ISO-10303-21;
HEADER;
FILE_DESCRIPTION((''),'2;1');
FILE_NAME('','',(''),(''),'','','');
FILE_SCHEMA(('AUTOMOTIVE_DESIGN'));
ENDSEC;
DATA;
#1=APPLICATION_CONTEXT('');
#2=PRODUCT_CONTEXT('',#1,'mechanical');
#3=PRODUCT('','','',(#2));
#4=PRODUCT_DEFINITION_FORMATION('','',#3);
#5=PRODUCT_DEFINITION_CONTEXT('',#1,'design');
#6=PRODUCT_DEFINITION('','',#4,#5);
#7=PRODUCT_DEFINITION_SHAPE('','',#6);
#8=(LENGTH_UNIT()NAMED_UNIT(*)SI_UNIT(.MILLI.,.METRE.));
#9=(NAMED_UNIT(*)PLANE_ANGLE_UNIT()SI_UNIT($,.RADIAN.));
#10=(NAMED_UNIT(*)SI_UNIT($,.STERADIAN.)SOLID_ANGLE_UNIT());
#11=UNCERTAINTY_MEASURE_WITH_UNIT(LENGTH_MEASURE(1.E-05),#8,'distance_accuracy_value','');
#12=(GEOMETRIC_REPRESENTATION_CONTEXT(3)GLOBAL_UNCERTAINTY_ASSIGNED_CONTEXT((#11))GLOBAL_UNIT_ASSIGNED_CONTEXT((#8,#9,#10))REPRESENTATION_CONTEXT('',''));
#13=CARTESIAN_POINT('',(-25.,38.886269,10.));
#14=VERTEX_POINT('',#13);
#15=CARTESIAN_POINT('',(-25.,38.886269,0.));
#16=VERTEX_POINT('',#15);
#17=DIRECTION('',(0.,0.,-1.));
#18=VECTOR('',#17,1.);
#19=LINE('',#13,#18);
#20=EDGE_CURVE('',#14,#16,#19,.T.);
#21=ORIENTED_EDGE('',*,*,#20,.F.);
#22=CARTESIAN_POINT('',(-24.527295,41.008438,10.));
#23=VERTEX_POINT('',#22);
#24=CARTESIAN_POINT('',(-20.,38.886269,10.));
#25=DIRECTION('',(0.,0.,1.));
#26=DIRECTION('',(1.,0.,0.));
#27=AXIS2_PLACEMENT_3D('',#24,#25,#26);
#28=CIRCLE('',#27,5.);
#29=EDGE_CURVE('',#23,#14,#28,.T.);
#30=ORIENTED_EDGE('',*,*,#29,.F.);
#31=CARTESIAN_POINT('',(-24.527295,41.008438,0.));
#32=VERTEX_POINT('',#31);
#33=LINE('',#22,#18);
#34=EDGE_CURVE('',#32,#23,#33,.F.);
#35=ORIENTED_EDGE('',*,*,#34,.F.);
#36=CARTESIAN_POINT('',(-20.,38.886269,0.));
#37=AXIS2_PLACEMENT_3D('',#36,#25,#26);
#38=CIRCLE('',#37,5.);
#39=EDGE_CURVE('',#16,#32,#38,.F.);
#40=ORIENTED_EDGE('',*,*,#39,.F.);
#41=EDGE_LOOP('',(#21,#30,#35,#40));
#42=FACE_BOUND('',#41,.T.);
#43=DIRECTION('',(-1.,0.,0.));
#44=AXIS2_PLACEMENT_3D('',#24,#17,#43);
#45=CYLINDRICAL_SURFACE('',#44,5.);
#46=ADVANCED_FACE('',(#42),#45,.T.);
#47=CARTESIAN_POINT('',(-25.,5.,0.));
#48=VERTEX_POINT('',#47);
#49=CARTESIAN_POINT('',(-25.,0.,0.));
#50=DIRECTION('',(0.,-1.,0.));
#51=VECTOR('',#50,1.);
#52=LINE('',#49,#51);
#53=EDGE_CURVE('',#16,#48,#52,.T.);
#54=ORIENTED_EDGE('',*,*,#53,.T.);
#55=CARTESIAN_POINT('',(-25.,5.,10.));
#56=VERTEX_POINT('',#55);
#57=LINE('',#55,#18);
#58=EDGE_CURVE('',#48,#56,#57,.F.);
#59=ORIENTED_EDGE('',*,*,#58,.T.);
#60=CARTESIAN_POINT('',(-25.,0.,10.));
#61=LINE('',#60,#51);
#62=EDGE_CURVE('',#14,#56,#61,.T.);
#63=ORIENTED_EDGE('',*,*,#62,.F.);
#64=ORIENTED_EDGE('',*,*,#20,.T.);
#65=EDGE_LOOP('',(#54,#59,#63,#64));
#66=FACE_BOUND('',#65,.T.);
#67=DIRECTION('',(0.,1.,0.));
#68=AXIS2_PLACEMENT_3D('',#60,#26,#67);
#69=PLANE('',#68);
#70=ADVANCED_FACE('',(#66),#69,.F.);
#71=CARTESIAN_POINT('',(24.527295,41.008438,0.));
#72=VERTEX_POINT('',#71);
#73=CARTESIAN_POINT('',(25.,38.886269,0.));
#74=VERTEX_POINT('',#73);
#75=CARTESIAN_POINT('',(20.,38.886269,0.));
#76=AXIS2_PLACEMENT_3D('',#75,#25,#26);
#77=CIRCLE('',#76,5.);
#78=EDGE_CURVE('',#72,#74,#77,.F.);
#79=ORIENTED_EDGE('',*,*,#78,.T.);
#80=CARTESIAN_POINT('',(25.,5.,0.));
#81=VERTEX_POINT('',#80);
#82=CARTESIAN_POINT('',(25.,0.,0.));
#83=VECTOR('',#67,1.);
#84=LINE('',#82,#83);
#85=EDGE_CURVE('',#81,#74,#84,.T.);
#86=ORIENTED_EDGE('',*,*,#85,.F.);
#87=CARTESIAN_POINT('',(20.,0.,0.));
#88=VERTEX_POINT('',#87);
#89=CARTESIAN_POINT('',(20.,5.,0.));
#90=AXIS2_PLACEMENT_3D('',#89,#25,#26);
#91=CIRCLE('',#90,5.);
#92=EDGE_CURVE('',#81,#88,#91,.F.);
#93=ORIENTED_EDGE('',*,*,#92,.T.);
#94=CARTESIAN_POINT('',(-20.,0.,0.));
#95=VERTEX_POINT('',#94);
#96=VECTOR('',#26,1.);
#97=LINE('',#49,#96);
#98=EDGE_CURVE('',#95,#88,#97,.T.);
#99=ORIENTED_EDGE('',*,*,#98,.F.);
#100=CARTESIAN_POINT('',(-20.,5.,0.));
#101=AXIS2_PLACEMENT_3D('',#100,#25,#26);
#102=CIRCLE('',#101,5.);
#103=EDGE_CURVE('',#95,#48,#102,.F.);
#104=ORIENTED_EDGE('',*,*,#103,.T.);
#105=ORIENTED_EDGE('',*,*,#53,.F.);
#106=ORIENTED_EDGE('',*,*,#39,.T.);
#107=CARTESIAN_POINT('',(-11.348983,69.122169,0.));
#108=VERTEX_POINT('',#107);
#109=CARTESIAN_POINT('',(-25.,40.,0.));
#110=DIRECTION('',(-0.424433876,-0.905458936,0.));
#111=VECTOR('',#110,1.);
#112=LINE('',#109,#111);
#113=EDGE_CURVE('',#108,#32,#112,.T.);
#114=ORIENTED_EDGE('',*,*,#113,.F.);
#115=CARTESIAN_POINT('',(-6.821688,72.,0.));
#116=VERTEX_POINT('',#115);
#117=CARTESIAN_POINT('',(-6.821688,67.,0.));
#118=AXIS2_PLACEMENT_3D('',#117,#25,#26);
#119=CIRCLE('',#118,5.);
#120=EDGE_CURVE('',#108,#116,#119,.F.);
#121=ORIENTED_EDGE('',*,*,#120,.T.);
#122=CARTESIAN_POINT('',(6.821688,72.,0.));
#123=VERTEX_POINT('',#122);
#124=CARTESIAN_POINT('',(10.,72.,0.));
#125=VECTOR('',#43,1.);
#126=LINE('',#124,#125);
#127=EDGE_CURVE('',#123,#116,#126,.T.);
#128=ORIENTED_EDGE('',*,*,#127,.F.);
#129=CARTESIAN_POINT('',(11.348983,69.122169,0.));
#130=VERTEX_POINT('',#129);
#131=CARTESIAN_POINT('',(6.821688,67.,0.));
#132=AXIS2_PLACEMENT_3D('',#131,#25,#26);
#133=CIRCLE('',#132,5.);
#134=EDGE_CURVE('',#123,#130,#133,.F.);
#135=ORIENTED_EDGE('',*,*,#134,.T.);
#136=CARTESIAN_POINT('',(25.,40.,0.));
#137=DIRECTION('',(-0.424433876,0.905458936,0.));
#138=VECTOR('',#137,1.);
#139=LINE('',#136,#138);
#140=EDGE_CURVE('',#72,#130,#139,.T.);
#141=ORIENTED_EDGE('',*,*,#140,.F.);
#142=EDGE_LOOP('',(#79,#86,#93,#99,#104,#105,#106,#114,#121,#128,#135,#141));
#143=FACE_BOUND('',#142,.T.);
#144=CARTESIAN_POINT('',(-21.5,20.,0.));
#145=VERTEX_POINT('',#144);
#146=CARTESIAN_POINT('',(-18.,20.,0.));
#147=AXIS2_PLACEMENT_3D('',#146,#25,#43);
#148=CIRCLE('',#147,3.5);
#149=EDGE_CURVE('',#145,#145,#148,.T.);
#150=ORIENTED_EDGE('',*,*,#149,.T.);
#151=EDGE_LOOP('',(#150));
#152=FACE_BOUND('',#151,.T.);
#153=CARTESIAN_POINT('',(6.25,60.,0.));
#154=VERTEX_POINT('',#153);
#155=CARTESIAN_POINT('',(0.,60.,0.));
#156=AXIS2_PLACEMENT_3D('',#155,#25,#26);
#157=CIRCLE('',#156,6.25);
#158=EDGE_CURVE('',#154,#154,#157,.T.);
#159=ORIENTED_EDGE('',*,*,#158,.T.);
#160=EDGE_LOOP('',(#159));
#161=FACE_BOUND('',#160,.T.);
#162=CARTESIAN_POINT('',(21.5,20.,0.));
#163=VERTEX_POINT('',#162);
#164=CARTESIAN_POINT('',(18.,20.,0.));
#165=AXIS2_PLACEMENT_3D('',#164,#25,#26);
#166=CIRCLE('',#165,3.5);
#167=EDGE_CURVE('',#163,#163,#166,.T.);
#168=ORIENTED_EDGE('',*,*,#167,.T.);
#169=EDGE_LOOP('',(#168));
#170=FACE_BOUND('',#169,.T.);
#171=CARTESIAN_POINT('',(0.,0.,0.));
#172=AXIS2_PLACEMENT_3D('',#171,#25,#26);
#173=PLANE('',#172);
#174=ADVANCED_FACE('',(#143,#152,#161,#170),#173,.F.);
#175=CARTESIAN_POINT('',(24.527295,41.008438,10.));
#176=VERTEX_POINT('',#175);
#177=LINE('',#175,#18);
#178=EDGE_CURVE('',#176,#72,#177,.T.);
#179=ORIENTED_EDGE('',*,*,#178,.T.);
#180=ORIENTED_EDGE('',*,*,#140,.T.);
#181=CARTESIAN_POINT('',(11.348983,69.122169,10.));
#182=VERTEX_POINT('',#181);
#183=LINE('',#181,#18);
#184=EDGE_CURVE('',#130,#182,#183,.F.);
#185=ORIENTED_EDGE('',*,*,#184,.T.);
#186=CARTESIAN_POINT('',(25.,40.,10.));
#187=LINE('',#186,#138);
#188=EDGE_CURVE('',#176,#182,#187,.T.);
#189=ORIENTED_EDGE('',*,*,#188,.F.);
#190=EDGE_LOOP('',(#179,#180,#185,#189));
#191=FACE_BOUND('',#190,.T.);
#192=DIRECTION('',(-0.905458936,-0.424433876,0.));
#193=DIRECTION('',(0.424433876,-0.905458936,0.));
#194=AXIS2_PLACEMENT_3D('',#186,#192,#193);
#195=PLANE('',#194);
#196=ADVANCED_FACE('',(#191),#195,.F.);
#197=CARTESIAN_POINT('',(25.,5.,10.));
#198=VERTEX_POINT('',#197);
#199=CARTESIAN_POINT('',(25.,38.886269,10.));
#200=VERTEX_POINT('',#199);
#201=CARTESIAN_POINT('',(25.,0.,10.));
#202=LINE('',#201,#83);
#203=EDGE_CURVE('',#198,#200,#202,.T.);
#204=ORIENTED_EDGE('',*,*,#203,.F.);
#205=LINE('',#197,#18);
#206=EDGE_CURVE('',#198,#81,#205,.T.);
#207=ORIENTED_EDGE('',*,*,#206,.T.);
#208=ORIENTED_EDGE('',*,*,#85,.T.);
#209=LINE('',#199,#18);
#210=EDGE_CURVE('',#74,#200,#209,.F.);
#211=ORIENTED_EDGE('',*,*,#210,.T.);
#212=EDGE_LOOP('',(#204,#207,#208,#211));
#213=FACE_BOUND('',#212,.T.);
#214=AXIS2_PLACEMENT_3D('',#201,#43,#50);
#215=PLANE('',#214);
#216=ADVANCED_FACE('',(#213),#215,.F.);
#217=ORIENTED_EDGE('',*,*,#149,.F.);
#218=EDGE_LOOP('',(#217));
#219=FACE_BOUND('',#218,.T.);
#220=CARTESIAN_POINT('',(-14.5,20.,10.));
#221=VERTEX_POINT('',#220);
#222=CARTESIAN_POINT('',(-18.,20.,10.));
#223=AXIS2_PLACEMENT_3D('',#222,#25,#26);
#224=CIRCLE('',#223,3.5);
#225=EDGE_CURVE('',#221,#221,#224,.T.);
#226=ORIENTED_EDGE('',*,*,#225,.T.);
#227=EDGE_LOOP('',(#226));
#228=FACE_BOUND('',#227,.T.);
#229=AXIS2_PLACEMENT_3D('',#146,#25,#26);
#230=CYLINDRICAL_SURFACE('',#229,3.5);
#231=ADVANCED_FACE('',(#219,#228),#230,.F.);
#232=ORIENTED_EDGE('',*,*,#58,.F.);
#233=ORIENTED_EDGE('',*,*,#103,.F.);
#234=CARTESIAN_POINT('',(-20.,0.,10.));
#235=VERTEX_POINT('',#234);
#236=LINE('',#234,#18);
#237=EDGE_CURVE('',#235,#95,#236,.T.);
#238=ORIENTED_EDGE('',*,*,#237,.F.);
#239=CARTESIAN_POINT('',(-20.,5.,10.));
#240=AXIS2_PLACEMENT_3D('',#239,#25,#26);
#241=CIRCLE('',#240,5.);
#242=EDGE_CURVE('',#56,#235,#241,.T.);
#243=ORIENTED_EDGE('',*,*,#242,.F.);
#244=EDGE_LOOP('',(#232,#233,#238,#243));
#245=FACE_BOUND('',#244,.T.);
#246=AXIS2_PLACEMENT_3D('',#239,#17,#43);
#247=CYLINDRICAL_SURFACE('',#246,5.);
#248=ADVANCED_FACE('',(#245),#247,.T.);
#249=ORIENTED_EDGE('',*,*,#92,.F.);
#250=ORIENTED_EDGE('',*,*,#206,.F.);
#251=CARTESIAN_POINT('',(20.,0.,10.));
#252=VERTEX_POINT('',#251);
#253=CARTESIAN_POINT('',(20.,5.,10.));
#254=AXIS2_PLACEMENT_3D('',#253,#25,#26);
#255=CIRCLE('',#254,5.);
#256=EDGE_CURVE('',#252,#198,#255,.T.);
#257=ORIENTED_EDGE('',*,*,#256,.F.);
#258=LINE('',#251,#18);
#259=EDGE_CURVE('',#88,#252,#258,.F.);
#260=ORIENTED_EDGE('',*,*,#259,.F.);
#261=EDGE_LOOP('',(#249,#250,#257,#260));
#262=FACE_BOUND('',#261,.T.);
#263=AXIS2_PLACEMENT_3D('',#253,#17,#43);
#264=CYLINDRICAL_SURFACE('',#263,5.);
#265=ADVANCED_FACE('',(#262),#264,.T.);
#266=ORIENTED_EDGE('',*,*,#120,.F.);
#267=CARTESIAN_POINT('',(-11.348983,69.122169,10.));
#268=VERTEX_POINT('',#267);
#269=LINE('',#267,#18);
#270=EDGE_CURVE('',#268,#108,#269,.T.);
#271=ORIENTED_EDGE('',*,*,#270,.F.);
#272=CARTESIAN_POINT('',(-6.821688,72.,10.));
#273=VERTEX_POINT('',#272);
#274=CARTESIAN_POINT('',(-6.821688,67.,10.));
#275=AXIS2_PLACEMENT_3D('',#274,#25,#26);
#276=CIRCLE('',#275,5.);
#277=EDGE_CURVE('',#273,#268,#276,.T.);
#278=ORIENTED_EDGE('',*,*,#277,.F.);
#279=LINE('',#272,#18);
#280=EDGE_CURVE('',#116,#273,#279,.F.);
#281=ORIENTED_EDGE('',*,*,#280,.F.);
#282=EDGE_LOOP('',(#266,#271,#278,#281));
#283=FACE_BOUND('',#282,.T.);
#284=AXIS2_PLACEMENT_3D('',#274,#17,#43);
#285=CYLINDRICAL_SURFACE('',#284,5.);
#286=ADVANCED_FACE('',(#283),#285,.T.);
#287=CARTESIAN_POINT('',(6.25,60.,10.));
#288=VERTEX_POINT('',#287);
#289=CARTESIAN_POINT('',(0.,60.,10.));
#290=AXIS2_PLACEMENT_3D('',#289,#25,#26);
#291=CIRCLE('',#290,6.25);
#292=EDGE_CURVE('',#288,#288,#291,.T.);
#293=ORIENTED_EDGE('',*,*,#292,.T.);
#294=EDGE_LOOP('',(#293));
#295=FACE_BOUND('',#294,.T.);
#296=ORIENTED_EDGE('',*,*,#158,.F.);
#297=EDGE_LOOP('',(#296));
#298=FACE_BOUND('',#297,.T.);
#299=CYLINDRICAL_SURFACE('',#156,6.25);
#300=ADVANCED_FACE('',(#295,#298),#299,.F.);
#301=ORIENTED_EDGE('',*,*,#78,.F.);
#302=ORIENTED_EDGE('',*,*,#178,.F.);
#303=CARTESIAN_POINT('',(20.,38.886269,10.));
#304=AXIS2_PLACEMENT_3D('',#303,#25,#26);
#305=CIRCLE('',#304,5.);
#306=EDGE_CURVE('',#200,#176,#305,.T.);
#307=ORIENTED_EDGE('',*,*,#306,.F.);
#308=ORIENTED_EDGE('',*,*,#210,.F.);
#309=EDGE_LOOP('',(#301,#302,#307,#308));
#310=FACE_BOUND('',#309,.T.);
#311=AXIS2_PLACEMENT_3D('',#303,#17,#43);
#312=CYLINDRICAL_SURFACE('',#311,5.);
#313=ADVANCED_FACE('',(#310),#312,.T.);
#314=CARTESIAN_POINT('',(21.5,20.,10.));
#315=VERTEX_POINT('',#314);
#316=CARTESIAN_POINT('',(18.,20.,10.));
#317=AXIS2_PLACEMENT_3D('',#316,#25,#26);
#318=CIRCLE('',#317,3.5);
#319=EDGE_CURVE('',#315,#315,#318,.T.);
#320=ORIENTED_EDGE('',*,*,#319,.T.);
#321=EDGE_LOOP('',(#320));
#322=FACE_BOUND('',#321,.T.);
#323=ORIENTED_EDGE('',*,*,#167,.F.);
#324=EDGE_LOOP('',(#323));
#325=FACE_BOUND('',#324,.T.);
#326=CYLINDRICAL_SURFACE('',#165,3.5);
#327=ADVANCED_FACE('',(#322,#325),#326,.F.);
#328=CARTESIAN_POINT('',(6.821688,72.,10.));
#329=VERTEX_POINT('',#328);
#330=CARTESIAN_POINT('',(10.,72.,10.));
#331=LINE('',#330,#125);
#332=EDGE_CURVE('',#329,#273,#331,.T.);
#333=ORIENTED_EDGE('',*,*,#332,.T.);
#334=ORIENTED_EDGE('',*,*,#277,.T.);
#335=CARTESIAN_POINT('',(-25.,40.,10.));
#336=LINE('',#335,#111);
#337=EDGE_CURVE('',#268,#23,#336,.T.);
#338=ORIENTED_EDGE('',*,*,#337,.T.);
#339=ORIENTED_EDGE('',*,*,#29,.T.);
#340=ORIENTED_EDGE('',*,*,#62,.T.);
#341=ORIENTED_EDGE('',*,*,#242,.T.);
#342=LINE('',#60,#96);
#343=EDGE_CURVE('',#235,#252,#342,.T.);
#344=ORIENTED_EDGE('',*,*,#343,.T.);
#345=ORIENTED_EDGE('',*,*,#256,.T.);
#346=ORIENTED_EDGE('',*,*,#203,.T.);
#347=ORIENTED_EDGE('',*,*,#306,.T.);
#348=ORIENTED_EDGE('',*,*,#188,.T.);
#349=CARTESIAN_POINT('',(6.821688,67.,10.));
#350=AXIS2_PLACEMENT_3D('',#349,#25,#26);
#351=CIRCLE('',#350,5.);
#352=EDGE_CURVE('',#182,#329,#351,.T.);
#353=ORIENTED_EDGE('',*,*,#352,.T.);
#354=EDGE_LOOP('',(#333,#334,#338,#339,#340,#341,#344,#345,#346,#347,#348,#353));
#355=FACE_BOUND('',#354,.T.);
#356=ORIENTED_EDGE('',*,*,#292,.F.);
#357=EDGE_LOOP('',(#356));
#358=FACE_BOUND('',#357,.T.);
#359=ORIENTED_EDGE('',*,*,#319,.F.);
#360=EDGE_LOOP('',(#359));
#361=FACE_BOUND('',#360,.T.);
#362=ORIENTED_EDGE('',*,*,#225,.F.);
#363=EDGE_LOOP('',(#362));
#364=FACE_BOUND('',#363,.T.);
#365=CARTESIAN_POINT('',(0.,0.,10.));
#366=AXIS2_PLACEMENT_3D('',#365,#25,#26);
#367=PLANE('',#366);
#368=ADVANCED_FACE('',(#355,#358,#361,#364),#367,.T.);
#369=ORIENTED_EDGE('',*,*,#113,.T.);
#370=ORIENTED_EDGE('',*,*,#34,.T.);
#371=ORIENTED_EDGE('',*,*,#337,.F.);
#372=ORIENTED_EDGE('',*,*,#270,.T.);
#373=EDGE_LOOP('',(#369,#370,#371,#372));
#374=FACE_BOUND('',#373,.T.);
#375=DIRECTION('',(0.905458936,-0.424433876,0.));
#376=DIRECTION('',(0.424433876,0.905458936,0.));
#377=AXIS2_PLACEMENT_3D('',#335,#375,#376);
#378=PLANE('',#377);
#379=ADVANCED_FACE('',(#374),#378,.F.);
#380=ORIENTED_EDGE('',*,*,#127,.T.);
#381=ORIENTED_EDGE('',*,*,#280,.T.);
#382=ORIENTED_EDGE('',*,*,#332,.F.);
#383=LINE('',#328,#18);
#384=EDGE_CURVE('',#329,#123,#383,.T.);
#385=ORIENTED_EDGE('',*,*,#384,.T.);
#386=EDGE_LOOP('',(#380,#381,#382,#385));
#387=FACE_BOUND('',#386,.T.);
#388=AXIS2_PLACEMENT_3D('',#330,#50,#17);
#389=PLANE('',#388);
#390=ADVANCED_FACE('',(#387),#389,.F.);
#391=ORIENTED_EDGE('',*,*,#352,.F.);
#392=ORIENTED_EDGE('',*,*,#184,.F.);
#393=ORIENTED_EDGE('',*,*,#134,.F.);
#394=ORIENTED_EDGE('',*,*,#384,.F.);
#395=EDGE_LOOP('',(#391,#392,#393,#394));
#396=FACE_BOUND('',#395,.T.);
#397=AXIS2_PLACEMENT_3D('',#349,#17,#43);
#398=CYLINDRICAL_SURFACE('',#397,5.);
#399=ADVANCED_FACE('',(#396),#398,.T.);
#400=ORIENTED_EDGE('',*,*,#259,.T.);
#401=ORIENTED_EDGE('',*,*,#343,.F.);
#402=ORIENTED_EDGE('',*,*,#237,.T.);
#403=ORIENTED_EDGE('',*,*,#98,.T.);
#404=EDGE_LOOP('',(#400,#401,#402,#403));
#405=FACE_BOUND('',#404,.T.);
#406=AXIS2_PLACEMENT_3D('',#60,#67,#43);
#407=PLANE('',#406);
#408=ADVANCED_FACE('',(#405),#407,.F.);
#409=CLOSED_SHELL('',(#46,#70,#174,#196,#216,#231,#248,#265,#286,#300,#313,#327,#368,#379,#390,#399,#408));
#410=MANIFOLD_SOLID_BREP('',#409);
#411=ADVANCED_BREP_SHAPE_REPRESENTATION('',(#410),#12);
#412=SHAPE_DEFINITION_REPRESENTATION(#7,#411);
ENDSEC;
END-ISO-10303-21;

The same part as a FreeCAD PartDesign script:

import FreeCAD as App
import Part
import Sketcher

V = App.Vector
Q = App.Units.Quantity


def edges_at(feature, points):
    """Names of the edges that pass closest to the given points."""
    edges = feature.Shape.Edges
    near = lambda p: min(range(len(edges)), key=lambda i: edges[i].distToShape(Part.Vertex(*p))[0])
    return sorted({f"Edge{near(p) + 1}" for p in points})


def add_polygon(sketch, points):
    """Adds a closed chain of lines whose ends are joined by coincident constraints."""
    first, n = sketch.GeometryCount, len(points)
    for a, b in zip(points, points[1:] + points[:1]):
        sketch.addGeometry(Part.LineSegment(App.Vector(*a, 0), App.Vector(*b, 0)), False)
    for i in range(n):
        sketch.addConstraint(Sketcher.Constraint("Coincident", first + i, 2, first + (i + 1) % n, 1))

doc = App.newDocument("Part")
body = doc.addObject("PartDesign::Body", "Body")

# Sketch on XY plane
sketch1 = doc.addObject("Sketcher::SketchObject", "Sketch")
body.addObject(sketch1)
sketch1.AttachmentSupport = (doc.XY_Plane, [""])
sketch1.MapMode = "FlatFace"
add_polygon(sketch1, [(-25, 0), (25, 0), (25, 40), (10, 72), (-10, 72), (-25, 40)])  # lines 0-5
sketch1.addConstraint([
    Sketcher.Constraint("Horizontal", 0),
    Sketcher.Constraint("Vertical", 1),
    Sketcher.Constraint("Horizontal", 3),
    Sketcher.Constraint("Vertical", 5),
    Sketcher.Constraint("Symmetric", 0, 2, 5, 2, -1, 1),
    Sketcher.Constraint("Horizontal", 1, 2, 4, 2),
    Sketcher.Constraint("Equal", 2, 4),
    Sketcher.Constraint("DistanceX", 0, 1, 0, 2, Q("50 mm")),
    Sketcher.Constraint("DistanceX", 3, 2, 3, 1, Q("20 mm")),
    Sketcher.Constraint("DistanceY", 1, 1, 1, 2, Q("40 mm")),
    Sketcher.Constraint("DistanceY", -1, 1, 2, 2, Q("72 mm")),
])
pad1 = doc.addObject("PartDesign::Pad", "Pad")
body.addObject(pad1)
pad1.Profile = sketch1
pad1.Length = 10

# Sketch on XY plane
sketch2 = doc.addObject("Sketcher::SketchObject", "Sketch001")
body.addObject(sketch2)
sketch2.AttachmentSupport = (doc.XY_Plane, [""])
sketch2.MapMode = "FlatFace"
sketch2.AttachmentOffset = App.Placement(V(0, 0, 10), App.Rotation())
sketch2.addGeometry([
    Part.Circle(V(18, 20, 0), V(0, 0, 1), 3.5),
    Part.Circle(V(-18, 20, 0), V(0, 0, 1), 3.5),
], False)
sketch2.addConstraint([
    Sketcher.Constraint("Equal", 0, 1),
    Sketcher.Constraint("Symmetric", 0, 3, 1, 3, -2),
    Sketcher.Constraint("Diameter", 0, Q("7 mm")),
    Sketcher.Constraint("DistanceX", -1, 1, 0, 3, Q("18 mm")),
    Sketcher.Constraint("DistanceY", -1, 1, 0, 3, Q("20 mm")),
])
pocket1 = doc.addObject("PartDesign::Pocket", "Pocket")
body.addObject(pocket1)
pocket1.Profile = sketch2
pocket1.Type = "ThroughAll"
pocket1.Midplane = True
doc.recompute()

fillet = doc.addObject("PartDesign::Fillet", "Fillet")
body.addObject(fillet)
fillet.Base = (pocket1, edges_at(pocket1, [
    (25, 0, 5),
    (-25, 0, 5),
    (-25, 40, 5),
    (-10, 72, 5),
    (10, 72, 5),
    (25, 40, 5),
]))
fillet.Radius = 5

# Sketch on XY plane
sketch3 = doc.addObject("Sketcher::SketchObject", "Sketch002")
body.addObject(sketch3)
sketch3.AttachmentSupport = (doc.XY_Plane, [""])
sketch3.MapMode = "FlatFace"
sketch3.AttachmentOffset = App.Placement(V(0, 0, 10), App.Rotation())
sketch3.addGeometry(Part.Circle(V(0, 60, 0), V(0, 0, 1), 6.25), False)
sketch3.addConstraint([
    Sketcher.Constraint("PointOnObject", 0, 3, -2),
    Sketcher.Constraint("Diameter", 0, Q("12.5 mm")),
    Sketcher.Constraint("DistanceY", -1, 1, 0, 3, Q("60 mm")),
])
pocket2 = doc.addObject("PartDesign::Pocket", "Pocket001")
body.addObject(pocket2)
pocket2.Profile = sketch3
pocket2.Type = "ThroughAll"

doc.recompute()
